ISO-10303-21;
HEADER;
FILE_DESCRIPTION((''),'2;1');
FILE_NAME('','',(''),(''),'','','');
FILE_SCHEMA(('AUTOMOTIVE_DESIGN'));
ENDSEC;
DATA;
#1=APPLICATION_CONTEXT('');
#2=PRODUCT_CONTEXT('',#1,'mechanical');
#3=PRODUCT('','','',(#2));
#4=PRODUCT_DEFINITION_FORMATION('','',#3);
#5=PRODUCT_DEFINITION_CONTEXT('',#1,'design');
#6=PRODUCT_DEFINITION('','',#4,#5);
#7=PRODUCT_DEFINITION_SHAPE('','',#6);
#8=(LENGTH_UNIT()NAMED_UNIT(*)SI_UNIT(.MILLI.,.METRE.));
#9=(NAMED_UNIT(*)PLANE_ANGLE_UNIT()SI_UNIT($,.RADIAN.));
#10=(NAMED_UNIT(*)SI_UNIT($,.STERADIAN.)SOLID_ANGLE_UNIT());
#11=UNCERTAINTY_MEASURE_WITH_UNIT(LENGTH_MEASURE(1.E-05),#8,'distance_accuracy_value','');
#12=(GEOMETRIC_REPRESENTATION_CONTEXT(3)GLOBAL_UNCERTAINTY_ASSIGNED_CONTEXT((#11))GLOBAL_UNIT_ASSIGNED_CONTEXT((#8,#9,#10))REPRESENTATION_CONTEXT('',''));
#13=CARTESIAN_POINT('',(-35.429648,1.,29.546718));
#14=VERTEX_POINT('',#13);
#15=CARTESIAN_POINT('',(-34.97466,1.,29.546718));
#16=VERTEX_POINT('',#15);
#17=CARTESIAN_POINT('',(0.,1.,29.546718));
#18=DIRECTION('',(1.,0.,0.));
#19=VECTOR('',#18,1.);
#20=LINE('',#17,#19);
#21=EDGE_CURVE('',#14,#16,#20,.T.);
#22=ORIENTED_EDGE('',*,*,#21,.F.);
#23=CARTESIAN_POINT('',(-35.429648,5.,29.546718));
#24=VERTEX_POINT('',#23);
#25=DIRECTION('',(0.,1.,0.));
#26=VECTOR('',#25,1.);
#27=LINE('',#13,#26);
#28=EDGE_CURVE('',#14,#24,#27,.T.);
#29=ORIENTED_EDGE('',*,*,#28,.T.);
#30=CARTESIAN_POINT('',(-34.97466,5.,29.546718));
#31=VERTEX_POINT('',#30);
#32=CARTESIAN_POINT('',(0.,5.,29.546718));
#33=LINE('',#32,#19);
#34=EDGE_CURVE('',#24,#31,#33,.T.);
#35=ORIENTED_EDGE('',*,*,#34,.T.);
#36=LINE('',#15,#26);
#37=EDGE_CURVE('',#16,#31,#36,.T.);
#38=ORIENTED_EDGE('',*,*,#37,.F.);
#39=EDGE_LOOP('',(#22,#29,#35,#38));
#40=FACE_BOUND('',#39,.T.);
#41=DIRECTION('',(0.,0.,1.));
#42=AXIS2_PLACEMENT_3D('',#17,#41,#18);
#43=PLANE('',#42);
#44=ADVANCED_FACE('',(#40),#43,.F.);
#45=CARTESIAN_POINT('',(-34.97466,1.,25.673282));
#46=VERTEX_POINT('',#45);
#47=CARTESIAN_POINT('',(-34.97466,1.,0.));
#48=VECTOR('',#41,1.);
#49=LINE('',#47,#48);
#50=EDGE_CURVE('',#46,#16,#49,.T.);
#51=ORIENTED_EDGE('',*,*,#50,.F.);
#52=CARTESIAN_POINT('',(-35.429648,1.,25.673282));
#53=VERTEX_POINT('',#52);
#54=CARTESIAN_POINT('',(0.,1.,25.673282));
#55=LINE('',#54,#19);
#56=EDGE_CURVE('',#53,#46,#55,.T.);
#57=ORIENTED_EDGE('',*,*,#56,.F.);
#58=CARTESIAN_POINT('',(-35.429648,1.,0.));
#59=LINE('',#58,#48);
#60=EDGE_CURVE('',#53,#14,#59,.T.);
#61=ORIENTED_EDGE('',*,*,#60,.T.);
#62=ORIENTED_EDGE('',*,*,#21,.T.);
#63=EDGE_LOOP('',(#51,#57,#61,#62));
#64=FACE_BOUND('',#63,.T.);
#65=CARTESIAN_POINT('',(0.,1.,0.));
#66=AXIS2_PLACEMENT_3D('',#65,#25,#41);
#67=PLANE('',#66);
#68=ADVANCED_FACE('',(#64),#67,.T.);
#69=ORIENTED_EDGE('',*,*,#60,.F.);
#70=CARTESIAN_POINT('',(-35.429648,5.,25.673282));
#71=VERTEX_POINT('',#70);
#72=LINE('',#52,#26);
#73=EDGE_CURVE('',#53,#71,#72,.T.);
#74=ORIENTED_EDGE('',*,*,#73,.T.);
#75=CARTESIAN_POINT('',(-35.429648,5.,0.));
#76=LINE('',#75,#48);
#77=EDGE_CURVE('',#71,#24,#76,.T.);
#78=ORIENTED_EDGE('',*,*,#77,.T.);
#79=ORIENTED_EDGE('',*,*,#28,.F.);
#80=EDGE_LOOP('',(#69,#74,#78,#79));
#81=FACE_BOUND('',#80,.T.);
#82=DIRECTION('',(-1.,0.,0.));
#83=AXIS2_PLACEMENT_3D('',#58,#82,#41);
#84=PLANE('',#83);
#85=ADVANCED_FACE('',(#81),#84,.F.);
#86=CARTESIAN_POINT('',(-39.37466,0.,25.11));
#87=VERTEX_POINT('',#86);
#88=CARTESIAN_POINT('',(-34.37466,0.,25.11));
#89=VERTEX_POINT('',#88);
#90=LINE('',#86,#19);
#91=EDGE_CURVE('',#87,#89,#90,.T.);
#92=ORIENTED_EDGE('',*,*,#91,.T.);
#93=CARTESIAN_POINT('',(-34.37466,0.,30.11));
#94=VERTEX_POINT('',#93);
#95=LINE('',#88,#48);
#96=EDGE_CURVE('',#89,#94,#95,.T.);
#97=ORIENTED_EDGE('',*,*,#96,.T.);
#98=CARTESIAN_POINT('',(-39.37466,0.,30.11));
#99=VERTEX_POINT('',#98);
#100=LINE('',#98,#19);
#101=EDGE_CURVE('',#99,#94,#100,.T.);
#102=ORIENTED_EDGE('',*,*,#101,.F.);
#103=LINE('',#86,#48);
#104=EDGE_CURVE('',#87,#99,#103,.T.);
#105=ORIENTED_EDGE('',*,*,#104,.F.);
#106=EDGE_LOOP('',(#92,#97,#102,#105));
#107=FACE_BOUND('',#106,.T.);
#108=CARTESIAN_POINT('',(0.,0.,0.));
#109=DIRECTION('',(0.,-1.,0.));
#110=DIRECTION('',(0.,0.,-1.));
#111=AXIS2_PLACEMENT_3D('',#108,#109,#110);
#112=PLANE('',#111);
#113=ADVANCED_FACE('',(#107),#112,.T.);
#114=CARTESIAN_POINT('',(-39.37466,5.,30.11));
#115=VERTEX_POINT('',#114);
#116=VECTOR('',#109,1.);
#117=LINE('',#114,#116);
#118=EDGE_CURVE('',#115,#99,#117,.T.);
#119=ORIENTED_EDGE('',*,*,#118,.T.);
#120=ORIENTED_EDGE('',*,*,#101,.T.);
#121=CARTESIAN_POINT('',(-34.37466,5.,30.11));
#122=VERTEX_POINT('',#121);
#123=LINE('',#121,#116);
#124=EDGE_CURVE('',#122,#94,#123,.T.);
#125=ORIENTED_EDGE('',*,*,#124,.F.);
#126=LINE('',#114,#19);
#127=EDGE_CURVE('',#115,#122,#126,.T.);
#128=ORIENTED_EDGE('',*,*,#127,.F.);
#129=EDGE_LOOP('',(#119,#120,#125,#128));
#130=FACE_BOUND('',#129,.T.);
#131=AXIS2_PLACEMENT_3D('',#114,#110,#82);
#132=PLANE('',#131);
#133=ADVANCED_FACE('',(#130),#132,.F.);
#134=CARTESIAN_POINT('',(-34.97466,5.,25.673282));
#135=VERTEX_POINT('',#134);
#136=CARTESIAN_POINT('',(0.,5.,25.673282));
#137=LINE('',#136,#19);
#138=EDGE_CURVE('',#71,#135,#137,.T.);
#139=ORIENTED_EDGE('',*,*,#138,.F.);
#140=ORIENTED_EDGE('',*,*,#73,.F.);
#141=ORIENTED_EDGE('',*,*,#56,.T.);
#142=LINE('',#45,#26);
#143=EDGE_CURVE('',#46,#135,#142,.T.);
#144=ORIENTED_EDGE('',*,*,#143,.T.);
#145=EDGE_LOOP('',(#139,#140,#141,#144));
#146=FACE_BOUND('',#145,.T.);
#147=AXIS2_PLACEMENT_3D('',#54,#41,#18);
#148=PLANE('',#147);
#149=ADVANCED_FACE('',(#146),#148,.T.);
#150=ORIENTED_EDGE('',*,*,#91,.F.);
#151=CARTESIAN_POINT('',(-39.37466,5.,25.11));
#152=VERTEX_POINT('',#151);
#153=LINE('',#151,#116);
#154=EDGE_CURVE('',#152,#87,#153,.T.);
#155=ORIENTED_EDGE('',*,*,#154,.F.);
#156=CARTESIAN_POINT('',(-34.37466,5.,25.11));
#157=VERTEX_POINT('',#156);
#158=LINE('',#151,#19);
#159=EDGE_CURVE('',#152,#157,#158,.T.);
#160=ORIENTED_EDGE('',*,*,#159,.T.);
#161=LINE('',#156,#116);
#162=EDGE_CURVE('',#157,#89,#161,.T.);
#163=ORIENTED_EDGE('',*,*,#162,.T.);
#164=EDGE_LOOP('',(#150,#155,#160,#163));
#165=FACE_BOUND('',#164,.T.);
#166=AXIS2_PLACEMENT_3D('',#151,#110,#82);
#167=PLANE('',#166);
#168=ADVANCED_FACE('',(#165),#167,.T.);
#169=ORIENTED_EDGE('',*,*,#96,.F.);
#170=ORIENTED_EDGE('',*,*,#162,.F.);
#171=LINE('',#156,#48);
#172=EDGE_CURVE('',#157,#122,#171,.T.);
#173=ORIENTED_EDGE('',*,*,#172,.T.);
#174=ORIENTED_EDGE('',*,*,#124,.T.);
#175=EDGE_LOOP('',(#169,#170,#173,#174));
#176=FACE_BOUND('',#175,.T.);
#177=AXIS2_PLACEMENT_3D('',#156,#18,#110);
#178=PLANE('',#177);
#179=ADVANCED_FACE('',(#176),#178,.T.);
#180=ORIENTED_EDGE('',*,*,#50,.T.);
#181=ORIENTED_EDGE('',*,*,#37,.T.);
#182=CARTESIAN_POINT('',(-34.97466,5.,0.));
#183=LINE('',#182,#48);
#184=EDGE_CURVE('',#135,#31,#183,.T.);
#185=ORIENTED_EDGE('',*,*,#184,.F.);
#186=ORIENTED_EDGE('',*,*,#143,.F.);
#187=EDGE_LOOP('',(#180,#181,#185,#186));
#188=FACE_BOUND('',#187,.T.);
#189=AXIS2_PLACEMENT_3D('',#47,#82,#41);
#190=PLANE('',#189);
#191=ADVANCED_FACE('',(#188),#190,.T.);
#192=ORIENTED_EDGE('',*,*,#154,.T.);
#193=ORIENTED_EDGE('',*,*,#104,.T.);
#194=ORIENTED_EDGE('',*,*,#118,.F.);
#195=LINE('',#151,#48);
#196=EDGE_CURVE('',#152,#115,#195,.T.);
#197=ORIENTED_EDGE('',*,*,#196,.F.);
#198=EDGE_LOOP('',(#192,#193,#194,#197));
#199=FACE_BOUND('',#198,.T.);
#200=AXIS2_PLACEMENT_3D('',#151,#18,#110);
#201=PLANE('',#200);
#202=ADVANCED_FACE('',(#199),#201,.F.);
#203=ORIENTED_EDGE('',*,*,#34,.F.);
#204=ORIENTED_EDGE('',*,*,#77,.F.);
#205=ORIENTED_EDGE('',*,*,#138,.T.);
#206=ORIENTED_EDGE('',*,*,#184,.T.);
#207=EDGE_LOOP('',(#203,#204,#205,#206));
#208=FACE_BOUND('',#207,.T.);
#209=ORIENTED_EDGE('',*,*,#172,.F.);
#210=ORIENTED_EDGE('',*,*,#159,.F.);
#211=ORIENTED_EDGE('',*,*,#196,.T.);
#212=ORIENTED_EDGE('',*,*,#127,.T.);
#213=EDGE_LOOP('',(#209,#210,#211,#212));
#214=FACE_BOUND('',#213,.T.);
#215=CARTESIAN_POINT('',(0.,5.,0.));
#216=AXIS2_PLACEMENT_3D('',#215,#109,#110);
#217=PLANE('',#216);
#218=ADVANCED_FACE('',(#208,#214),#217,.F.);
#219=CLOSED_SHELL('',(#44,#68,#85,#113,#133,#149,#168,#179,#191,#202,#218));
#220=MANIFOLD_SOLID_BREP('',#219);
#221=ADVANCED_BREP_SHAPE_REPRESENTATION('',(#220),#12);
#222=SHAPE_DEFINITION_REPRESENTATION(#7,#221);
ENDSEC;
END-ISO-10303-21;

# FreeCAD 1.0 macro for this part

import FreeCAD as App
import Part
import Sketcher

V = App.Vector


def add_polygon(sketch, points):
    """Adds a closed chain of lines whose ends are joined by coincident constraints."""
    first, n = sketch.GeometryCount, len(points)
    for a, b in zip(points, points[1:] + points[:1]):
        sketch.addGeometry(Part.LineSegment(App.Vector(*a, 0), App.Vector(*b, 0)), False)
    for i in range(n):
        sketch.addConstraint(Sketcher.Constraint("Coincident", first + i, 2, first + (i + 1) % n, 1))

doc = App.newDocument("Part")
params = doc.addObject("Spreadsheet::Sheet", "Params")
for row, (alias, value) in enumerate([
    ("sketch1_width", "5 mm"),
    ("pad1_length", "5 mm"),
    ("pocket1_length", "4 mm"),
], start=1):
    params.set(f"A{row}", alias)
    params.set(f"B{row}", "=" + value)
    params.setAlias(f"B{row}", alias)

body = doc.addObject("PartDesign::Body", "Body")

# Sketch on XZ plane
sketch1 = body.newObject("Sketcher::SketchObject", "Sketch")
sketch1.AttachmentSupport = (doc.getObject("XZ_Plane"), [""])
sketch1.MapMode = "FlatFace"
add_polygon(sketch1, [(-39, 25), (-39, 30), (-34, 30), (-34, 25)])  # lines 0-3
sketch1.addConstraint([
    Sketcher.Constraint("Vertical", 0),
    Sketcher.Constraint("Horizontal", 1),
    Sketcher.Constraint("Vertical", 2),
    Sketcher.Constraint("Horizontal", 3),
    Sketcher.Constraint("Equal", 3, 0),
    Sketcher.Constraint("DistanceX", 1, 1, 1, 2, 5.0),
    Sketcher.Constraint("DistanceY", -1, 1, 0, 2, 30.11),
    Sketcher.Constraint("DistanceX", 0, 2, -1, 1, 39.37466),
])
sketch1.setExpression("Constraints[9]", "Params.sketch1_width")
pad1 = body.newObject("PartDesign::Pad", "Pad")
pad1.Profile = sketch1
pad1.setExpression("Length", "Params.pad1_length")
pad1.Reversed = True

# Sketch on XZ plane
sketch2 = body.newObject("Sketcher::SketchObject", "Sketch001")
sketch2.AttachmentSupport = (doc.getObject("XZ_Plane"), [""])
sketch2.MapMode = "FlatFace"
sketch2.AttachmentOffset = App.Placement(V(0, 0, -5), App.Rotation())
add_polygon(sketch2, [(-35.43, 25.67), (-35.43, 29.55), (-34.97, 29.55), (-34.97, 25.67)])  # lines 0-3
sketch2.addConstraint([
    Sketcher.Constraint("Vertical", 0),
    Sketcher.Constraint("Horizontal", 1),
    Sketcher.Constraint("Vertical", 2),
    Sketcher.Constraint("Horizontal", 3),
    Sketcher.Constraint("DistanceX", 1, 1, 1, 2, 0.454987),
    Sketcher.Constraint("DistanceY", 0, 1, 0, 2, 3.873436),
    Sketcher.Constraint("DistanceY", -1, 1, 0, 2, 29.546718),
    Sketcher.Constraint("DistanceX", 1, 2, -1, 1, 34.97466),
])
pocket1 = body.newObject("PartDesign::Pocket", "Pocket")
pocket1.Profile = sketch2
pocket1.setExpression("Length", "Params.pocket1_length")
pocket1.Reversed = True

doc.recompute()
